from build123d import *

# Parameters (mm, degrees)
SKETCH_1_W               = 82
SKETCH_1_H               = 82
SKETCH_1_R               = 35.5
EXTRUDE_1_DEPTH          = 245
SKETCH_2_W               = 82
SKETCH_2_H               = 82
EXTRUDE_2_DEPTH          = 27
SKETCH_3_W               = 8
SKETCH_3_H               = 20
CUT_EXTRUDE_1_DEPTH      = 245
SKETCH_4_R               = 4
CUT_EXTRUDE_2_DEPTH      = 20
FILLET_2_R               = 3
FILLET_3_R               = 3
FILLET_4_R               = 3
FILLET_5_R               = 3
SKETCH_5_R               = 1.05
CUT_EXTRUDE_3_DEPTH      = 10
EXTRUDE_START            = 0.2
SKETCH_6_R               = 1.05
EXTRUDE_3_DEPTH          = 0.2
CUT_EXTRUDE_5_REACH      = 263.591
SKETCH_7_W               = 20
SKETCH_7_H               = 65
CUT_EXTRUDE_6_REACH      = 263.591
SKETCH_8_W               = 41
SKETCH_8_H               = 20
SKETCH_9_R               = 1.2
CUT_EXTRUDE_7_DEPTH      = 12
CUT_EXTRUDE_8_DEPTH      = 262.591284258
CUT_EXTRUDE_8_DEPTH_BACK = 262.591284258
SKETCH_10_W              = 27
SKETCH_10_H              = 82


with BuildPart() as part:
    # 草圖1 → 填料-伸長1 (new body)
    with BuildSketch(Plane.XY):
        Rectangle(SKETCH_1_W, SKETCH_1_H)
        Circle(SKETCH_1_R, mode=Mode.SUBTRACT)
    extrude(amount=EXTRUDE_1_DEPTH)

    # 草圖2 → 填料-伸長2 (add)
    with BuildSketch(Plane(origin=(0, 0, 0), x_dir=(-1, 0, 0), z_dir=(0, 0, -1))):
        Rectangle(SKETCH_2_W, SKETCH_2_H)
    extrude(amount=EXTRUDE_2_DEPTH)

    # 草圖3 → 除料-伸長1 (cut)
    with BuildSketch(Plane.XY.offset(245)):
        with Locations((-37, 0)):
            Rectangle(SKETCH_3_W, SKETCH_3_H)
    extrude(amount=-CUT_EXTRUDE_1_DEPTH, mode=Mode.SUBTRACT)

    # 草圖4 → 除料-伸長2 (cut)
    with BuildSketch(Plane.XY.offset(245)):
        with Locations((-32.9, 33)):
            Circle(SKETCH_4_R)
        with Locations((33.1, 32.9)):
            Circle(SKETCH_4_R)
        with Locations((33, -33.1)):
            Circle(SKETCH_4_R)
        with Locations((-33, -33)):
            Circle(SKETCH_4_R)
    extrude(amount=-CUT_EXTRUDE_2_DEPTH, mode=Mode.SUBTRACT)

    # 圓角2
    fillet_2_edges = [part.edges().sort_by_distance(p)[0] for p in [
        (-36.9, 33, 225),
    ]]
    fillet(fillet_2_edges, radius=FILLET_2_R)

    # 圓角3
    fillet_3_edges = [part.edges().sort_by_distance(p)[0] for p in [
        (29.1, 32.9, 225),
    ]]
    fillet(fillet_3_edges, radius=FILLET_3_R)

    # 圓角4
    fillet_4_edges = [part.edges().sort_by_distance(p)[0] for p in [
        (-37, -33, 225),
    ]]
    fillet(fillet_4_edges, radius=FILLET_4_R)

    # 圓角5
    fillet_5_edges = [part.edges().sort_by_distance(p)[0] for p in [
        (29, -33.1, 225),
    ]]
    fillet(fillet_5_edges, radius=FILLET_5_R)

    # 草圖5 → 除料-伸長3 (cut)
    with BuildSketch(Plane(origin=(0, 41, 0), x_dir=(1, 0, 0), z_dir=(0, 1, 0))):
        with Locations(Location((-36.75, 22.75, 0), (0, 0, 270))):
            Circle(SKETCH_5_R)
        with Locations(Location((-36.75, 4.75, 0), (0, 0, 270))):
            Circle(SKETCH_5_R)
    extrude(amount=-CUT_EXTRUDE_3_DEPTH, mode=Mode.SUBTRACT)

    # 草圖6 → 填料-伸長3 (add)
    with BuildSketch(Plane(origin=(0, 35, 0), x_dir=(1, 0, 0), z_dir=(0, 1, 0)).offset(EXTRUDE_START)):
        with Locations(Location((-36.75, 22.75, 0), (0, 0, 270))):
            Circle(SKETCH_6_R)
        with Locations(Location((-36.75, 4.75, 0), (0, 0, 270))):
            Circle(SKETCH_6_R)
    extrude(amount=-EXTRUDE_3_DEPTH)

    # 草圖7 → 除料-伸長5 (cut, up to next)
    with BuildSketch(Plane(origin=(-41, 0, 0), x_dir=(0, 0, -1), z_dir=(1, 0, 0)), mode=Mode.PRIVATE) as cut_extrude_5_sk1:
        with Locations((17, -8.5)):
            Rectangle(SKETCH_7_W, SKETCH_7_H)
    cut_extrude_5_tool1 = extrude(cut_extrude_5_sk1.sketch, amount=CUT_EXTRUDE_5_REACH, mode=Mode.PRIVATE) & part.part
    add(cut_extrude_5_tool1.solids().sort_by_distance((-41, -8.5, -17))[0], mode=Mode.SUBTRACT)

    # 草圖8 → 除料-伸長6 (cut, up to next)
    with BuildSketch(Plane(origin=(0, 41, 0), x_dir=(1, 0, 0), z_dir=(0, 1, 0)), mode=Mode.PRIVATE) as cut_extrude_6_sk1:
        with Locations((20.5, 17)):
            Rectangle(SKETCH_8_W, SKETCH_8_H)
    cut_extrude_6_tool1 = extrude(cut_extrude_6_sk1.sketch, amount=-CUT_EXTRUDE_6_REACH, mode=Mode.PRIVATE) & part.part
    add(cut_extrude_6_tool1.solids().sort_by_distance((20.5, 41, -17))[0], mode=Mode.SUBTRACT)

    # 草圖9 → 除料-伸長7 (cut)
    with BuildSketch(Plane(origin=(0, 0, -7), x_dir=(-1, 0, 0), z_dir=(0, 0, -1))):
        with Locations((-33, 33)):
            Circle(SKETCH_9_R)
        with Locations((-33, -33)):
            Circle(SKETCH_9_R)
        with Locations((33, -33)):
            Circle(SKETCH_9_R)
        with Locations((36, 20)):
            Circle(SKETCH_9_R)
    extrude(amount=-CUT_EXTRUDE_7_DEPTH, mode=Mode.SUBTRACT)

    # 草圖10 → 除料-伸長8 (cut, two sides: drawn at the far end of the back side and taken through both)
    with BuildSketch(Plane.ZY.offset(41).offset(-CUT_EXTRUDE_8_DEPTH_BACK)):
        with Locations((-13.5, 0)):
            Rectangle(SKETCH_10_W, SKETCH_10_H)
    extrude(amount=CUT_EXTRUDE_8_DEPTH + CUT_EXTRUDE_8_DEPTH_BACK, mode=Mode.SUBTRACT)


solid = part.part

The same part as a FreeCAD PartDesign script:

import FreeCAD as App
import Part
import Sketcher
from FreeCAD import Vector


def edges_at(feature, points):
    """Names of the edges that pass closest to the given points."""
    edges = feature.Shape.Edges
    near = lambda p: min(range(len(edges)), key=lambda i: edges[i].distToShape(Part.Vertex(*p))[0])
    return sorted({f"Edge{near(p) + 1}" for p in points})

doc = App.newDocument("Part")
params = doc.addObject("Spreadsheet::Sheet", "Params")
for row, (alias, value) in enumerate([
    ("sketch1_diameter", "71 mm"),
    ("sketch1_width", "82 mm"),
    ("pad1_length", "245 mm"),
    ("sketch2_width", "82 mm"),
    ("pad2_length", "27 mm"),
    ("sketch3_width", "8 mm"),
    ("sketch3_height", "20 mm"),
    ("pocket1_length", "245 mm"),
    ("sketch4_diameter", "8 mm"),
    ("pocket2_length", "20 mm"),
    ("fillet_radius", "3 mm"),
    ("fillet2_radius", "3 mm"),
    ("fillet3_radius", "3 mm"),
    ("fillet4_radius", "3 mm"),
    ("sketch5_diameter", "2.1 mm"),
    ("pocket3_length", "10 mm"),
    ("sketch6_diameter", "2.1 mm"),
    ("pad3_length", "0.2 mm"),
    ("sketch7_width", "65 mm"),
    ("sketch7_height", "20 mm"),
    ("sketch8_width", "41 mm"),
    ("sketch8_height", "20 mm"),
    ("sketch9_diameter", "2.4 mm"),
    ("pocket6_length", "12 mm"),
    ("sketch10_width", "82 mm"),
    ("sketch10_height", "27 mm"),
], start=1):
    params.set(f"A{row}", alias)
    params.set(f"B{row}", "=" + value)
    params.setAlias(f"B{row}", alias)

body = doc.addObject("PartDesign::Body", "Body")

# Sketch on XY plane
sketch1 = doc.addObject("Sketcher::SketchObject", "Sketch")
body.addObject(sketch1)
sketch1.AttachmentSupport = (doc.XY_Plane, [""])
sketch1.MapMode = "FlatFace"
sketch1.addGeometry([
    Part.LineSegment(Vector(-41, 41, 0), Vector(-41, -41, 0)),  # 0
    Part.LineSegment(Vector(-41, -41, 0), Vector(41, -41, 0)),  # 1
    Part.LineSegment(Vector(41, -41, 0), Vector(41, 41, 0)),  # 2
    Part.LineSegment(Vector(41, 41, 0), Vector(-41, 41, 0)),  # 3
    Part.Circle(Vector(0, 0, 0), Vector(0, 0, 1), 36),  # 4
], False)
sketch1.addConstraint([
    Sketcher.Constraint("Coincident", 0, 2, 1, 1),
    Sketcher.Constraint("Coincident", 1, 2, 2, 1),
    Sketcher.Constraint("Coincident", 2, 2, 3, 1),
    Sketcher.Constraint("Coincident", 3, 2, 0, 1),
    Sketcher.Constraint("Vertical", 0),
    Sketcher.Constraint("Horizontal", 1),
    Sketcher.Constraint("Vertical", 2),
    Sketcher.Constraint("Horizontal", 3),
    Sketcher.Constraint("Coincident", 4, 3, -1, 1),
    Sketcher.Constraint("Symmetric", 0, 2, 2, 2, -1, 1),
    Sketcher.Constraint("Equal", 3, 0),
    Sketcher.Constraint("Diameter", 4, 71.0),
    Sketcher.Constraint("DistanceX", 1, 1, 1, 2, 82.0),
])
sketch1.setExpression("Constraints[11]", "Params.sketch1_diameter")
sketch1.setExpression("Constraints[12]", "Params.sketch1_width")
pad1 = doc.addObject("PartDesign::Pad", "Pad")
body.addObject(pad1)
pad1.Profile = sketch1
pad1.setExpression("Length", "Params.pad1_length")

# Sketch on XY plane
sketch2 = doc.addObject("Sketcher::SketchObject", "Sketch001")
body.addObject(sketch2)
sketch2.AttachmentSupport = (doc.XY_Plane, [""])
sketch2.MapMode = "FlatFace"
sketch2.addGeometry([
    Part.LineSegment(Vector(41, 41, 0), Vector(41, -41, 0)),
    Part.LineSegment(Vector(41, -41, 0), Vector(-41, -41, 0)),
    Part.LineSegment(Vector(-41, -41, 0), Vector(-41, 41, 0)),
    Part.LineSegment(Vector(-41, 41, 0), Vector(41, 41, 0)),
], False)
sketch2.addConstraint([
    Sketcher.Constraint("Coincident", 0, 2, 1, 1),
    Sketcher.Constraint("Coincident", 1, 2, 2, 1),
    Sketcher.Constraint("Coincident", 2, 2, 3, 1),
    Sketcher.Constraint("Coincident", 3, 2, 0, 1),
    Sketcher.Constraint("Vertical", 0),
    Sketcher.Constraint("Horizontal", 1),
    Sketcher.Constraint("Vertical", 2),
    Sketcher.Constraint("Horizontal", 3),
    Sketcher.Constraint("Symmetric", 0, 2, 2, 2, -1, 1),
    Sketcher.Constraint("Equal", 3, 0),
    Sketcher.Constraint("DistanceX", 1, 2, 1, 1, 82.0),
])
sketch2.setExpression("Constraints[10]", "Params.sketch2_width")
pad2 = doc.addObject("PartDesign::Pad", "Pad001")
body.addObject(pad2)
pad2.Profile = sketch2
pad2.setExpression("Length", "Params.pad2_length")
pad2.Reversed = True

# Sketch on XY plane
sketch3 = doc.addObject("Sketcher::SketchObject", "Sketch002")
body.addObject(sketch3)
sketch3.AttachmentSupport = (doc.XY_Plane, [""])
sketch3.MapMode = "FlatFace"
sketch3.AttachmentOffset = App.Placement(Vector(0, 0, 245), App.Rotation())
sketch3.addGeometry([
    Part.LineSegment(Vector(-41, 10, 0), Vector(-41, -10, 0)),
    Part.LineSegment(Vector(-41, -10, 0), Vector(-33, -10, 0)),
    Part.LineSegment(Vector(-33, -10, 0), Vector(-33, 10, 0)),
    Part.LineSegment(Vector(-33, 10, 0), Vector(-41, 10, 0)),
], False)
sketch3.addConstraint([
    Sketcher.Constraint("Coincident", 0, 2, 1, 1),
    Sketcher.Constraint("Coincident", 1, 2, 2, 1),
    Sketcher.Constraint("Coincident", 2, 2, 3, 1),
    Sketcher.Constraint("Coincident", 3, 2, 0, 1),
    Sketcher.Constraint("Vertical", 0),
    Sketcher.Constraint("Horizontal", 1),
    Sketcher.Constraint("Vertical", 2),
    Sketcher.Constraint("Horizontal", 3),
    Sketcher.Constraint("DistanceX", 1, 1, 1, 2, 8.0),
    Sketcher.Constraint("DistanceY", 0, 2, 0, 1, 20.0),
    Sketcher.Constraint("DistanceX", 0, 2, -1, 1, 41.0),
    Sketcher.Constraint("DistanceY", 0, 2, -1, 1, 10.0),
])
sketch3.setExpression("Constraints[8]", "Params.sketch3_width")
sketch3.setExpression("Constraints[9]", "Params.sketch3_height")
pocket1 = doc.addObject("PartDesign::Pocket", "Pocket")
body.addObject(pocket1)
pocket1.Profile = sketch3
pocket1.setExpression("Length", "Params.pocket1_length")

# Sketch on XY plane
sketch4 = doc.addObject("Sketcher::SketchObject", "Sketch003")
body.addObject(sketch4)
sketch4.AttachmentSupport = (doc.XY_Plane, [""])
sketch4.MapMode = "FlatFace"
sketch4.AttachmentOffset = App.Placement(Vector(0, 0, 245), App.Rotation())
sketch4.addGeometry([
    Part.Circle(Vector(-32.9, 33, 0), Vector(0, 0, 1), 4),
    Part.Circle(Vector(33.1, 32.9, 0), Vector(0, 0, 1), 4),
    Part.Circle(Vector(33, -33.1, 0), Vector(0, 0, 1), 4),
    Part.Circle(Vector(-33, -33, 0), Vector(0, 0, 1), 4),
], False)
sketch4.addConstraint([
    Sketcher.Constraint("Equal", 0, 1),
    Sketcher.Constraint("Equal", 1, 2),
    Sketcher.Constraint("Equal", 2, 3),
    Sketcher.Constraint("Diameter", 0, 8.0),
    Sketcher.Constraint("DistanceY", -1, 1, 0, 3, 33.0),
    Sketcher.Constraint("DistanceX", -1, 1, 2, 3, 33.0),
    Sketcher.Constraint("DistanceX", 3, 3, -1, 1, 33.0),
    Sketcher.Constraint("DistanceY", 3, 3, -1, 1, 33.0),
    Sketcher.Constraint("DistanceX", 0, 3, 1, 3, 66.0),
    Sketcher.Constraint("DistanceY", 2, 3, 1, 3, 66.0),
    Sketcher.Constraint("DistanceX", 0, 3, -1, 1, 32.9),
    Sketcher.Constraint("DistanceY", -1, 1, 1, 3, 32.9),
])
sketch4.setExpression("Constraints[3]", "Params.sketch4_diameter")
pocket2 = doc.addObject("PartDesign::Pocket", "Pocket001")
body.addObject(pocket2)
pocket2.Profile = sketch4
pocket2.setExpression("Length", "Params.pocket2_length")
doc.recompute()

fillet = doc.addObject("PartDesign::Fillet", "Fillet")
body.addObject(fillet)
fillet.Base = (pocket2, edges_at(pocket2, [(-36.9, 33, 225)]))
fillet.setExpression("Radius", "Params.fillet_radius")
doc.recompute()

fillet2 = doc.addObject("PartDesign::Fillet", "Fillet001")
body.addObject(fillet2)
fillet2.Base = (fillet, edges_at(fillet, [(29.1, 32.9, 225)]))
fillet2.setExpression("Radius", "Params.fillet2_radius")
doc.recompute()

fillet3 = doc.addObject("PartDesign::Fillet", "Fillet002")
body.addObject(fillet3)
fillet3.Base = (fillet2, edges_at(fillet2, [(-37, -33, 225)]))
fillet3.setExpression("Radius", "Params.fillet3_radius")
doc.recompute()

fillet4 = doc.addObject("PartDesign::Fillet", "Fillet003")
body.addObject(fillet4)
fillet4.Base = (fillet3, edges_at(fillet3, [(29, -33.1, 225)]))
fillet4.setExpression("Radius", "Params.fillet4_radius")

# Sketch on XZ plane
sketch5 = doc.addObject("Sketcher::SketchObject", "Sketch004")
body.addObject(sketch5)
sketch5.AttachmentSupport = (doc.XZ_Plane, [""])
sketch5.MapMode = "FlatFace"
sketch5.AttachmentOffset = App.Placement(Vector(0, 0, -41), App.Rotation())
sketch5.addGeometry([
    Part.Circle(Vector(-36.8, -22.8, 0), Vector(0, 0, 1), 1.1),
    Part.Circle(Vector(-36.8, -4.8, 0), Vector(0, 0, 1), 1.1),
], False)
sketch5.addConstraint([
    Sketcher.Constraint("Equal", 0, 1),
    Sketcher.Constraint("Vertical", 0, 3, 1, 3),
    Sketcher.Constraint("Diameter", 0, 2.1),
    Sketcher.Constraint("DistanceY", 0, 3, 1, 3, 18.0),
    Sketcher.Constraint("DistanceX", 0, 3, -1, 1, 36.75),
    Sketcher.Constraint("DistanceY", 0, 3, -1, 1, 22.75),
])
sketch5.setExpression("Constraints[2]", "Params.sketch5_diameter")
pocket3 = doc.addObject("PartDesign::Pocket", "Pocket002")
body.addObject(pocket3)
pocket3.Profile = sketch5
pocket3.setExpression("Length", "Params.pocket3_length")
pocket3.Reversed = True

# Sketch on XZ plane
sketch6 = doc.addObject("Sketcher::SketchObject", "Sketch005")
body.addObject(sketch6)
sketch6.AttachmentSupport = (doc.XZ_Plane, [""])
sketch6.MapMode = "FlatFace"
sketch6.AttachmentOffset = App.Placement(Vector(0, 0, -35.2), App.Rotation())
sketch6.addGeometry([
    Part.Circle(Vector(-36.8, -22.8, 0), Vector(0, 0, 1), 1.1),
    Part.Circle(Vector(-36.8, -4.8, 0), Vector(0, 0, 1), 1.1),
], False)
sketch6.addConstraint([
    Sketcher.Constraint("Equal", 0, 1),
    Sketcher.Constraint("Vertical", 0, 3, 1, 3),
    Sketcher.Constraint("Diameter", 0, 2.1),
    Sketcher.Constraint("DistanceY", 0, 3, 1, 3, 18.0),
    Sketcher.Constraint("DistanceX", 0, 3, -1, 1, 36.75),
    Sketcher.Constraint("DistanceY", 0, 3, -1, 1, 22.75),
])
sketch6.setExpression("Constraints[2]", "Params.sketch6_diameter")
pad3 = doc.addObject("PartDesign::Pad", "Pad002")
body.addObject(pad3)
pad3.Profile = sketch6
pad3.setExpression("Length", "Params.pad3_length")

# Sketch on YZ plane
sketch7 = doc.addObject("Sketcher::SketchObject", "Sketch006")
body.addObject(sketch7)
sketch7.AttachmentSupport = (doc.YZ_Plane, [""])
sketch7.MapMode = "FlatFace"
sketch7.AttachmentOffset = App.Placement(Vector(0, 0, -41), App.Rotation())
sketch7.addGeometry([
    Part.LineSegment(Vector(24, -7, 0), Vector(-41, -7, 0)),
    Part.LineSegment(Vector(-41, -7, 0), Vector(-41, -27, 0)),
    Part.LineSegment(Vector(-41, -27, 0), Vector(24, -27, 0)),
    Part.LineSegment(Vector(24, -27, 0), Vector(24, -7, 0)),
], False)
sketch7.addConstraint([
    Sketcher.Constraint("Coincident", 0, 2, 1, 1),
    Sketcher.Constraint("Coincident", 1, 2, 2, 1),
    Sketcher.Constraint("Coincident", 2, 2, 3, 1),
    Sketcher.Constraint("Coincident", 3, 2, 0, 1),
    Sketcher.Constraint("Horizontal", 0),
    Sketcher.Constraint("Vertical", 1),
    Sketcher.Constraint("Horizontal", 2),
    Sketcher.Constraint("Vertical", 3),
    Sketcher.Constraint("DistanceX", 0, 2, 0, 1, 65.0),
    Sketcher.Constraint("DistanceY", 1, 2, 1, 1, 20.0),
    Sketcher.Constraint("DistanceX", 0, 2, -1, 1, 41.0),
    Sketcher.Constraint("DistanceY", 0, 2, -1, 1, 7.0),
])
sketch7.setExpression("Constraints[8]", "Params.sketch7_width")
sketch7.setExpression("Constraints[9]", "Params.sketch7_height")
pocket4 = doc.addObject("PartDesign::Pocket", "Pocket003")
body.addObject(pocket4)
pocket4.Profile = sketch7
pocket4.Type = "UpToFirst"
pocket4.Reversed = True

# Sketch on XZ plane
sketch8 = doc.addObject("Sketcher::SketchObject", "Sketch007")
body.addObject(sketch8)
sketch8.AttachmentSupport = (doc.XZ_Plane, [""])
sketch8.MapMode = "FlatFace"
sketch8.AttachmentOffset = App.Placement(Vector(0, 0, -41), App.Rotation())
sketch8.addGeometry([
    Part.LineSegment(Vector(0, -27, 0), Vector(0, -7, 0)),
    Part.LineSegment(Vector(0, -7, 0), Vector(41, -7, 0)),
    Part.LineSegment(Vector(41, -7, 0), Vector(41, -27, 0)),
    Part.LineSegment(Vector(41, -27, 0), Vector(0, -27, 0)),
], False)
sketch8.addConstraint([
    Sketcher.Constraint("Coincident", 0, 2, 1, 1),
    Sketcher.Constraint("Coincident", 1, 2, 2, 1),
    Sketcher.Constraint("Coincident", 2, 2, 3, 1),
    Sketcher.Constraint("Coincident", 3, 2, 0, 1),
    Sketcher.Constraint("Vertical", 0),
    Sketcher.Constraint("Horizontal", 1),
    Sketcher.Constraint("Vertical", 2),
    Sketcher.Constraint("Horizontal", 3),
    Sketcher.Constraint("PointOnObject", 0, 2, -2),
    Sketcher.Constraint("DistanceX", 1, 1, 1, 2, 41.0),
    Sketcher.Constraint("DistanceY", 0, 1, 0, 2, 20.0),
    Sketcher.Constraint("DistanceY", 0, 2, -1, 1, 7.0),
])
sketch8.setExpression("Constraints[9]", "Params.sketch8_width")
sketch8.setExpression("Constraints[10]", "Params.sketch8_height")
pocket5 = doc.addObject("PartDesign::Pocket", "Pocket004")
body.addObject(pocket5)
pocket5.Profile = sketch8
pocket5.Type = "UpToFirst"
pocket5.Reversed = True

# Sketch on XY plane
sketch9 = doc.addObject("Sketcher::SketchObject", "Sketch008")
body.addObject(sketch9)
sketch9.AttachmentSupport = (doc.XY_Plane, [""])
sketch9.MapMode = "FlatFace"
sketch9.AttachmentOffset = App.Placement(Vector(0, 0, -7), App.Rotation())
sketch9.addGeometry([
    Part.Circle(Vector(33, 33, 0), Vector(0, 0, 1), 1.2),
    Part.Circle(Vector(33, -33, 0), Vector(0, 0, 1), 1.2),
    Part.Circle(Vector(-33, -33, 0), Vector(0, 0, 1), 1.2),
    Part.Circle(Vector(-36, 20, 0), Vector(0, 0, 1), 1.2),
], False)
sketch9.addConstraint([
    Sketcher.Constraint("Equal", 0, 1),
    Sketcher.Constraint("Equal", 1, 2),
    Sketcher.Constraint("Equal", 2, 3),
    Sketcher.Constraint("Symmetric", 0, 3, 2, 3, -1, 1),
    Sketcher.Constraint("Symmetric", 1, 3, 2, 3, -2),
    Sketcher.Constraint("Diameter", 0, 2.4),
    Sketcher.Constraint("DistanceX", -1, 1, 0, 3, 33.0),
    Sketcher.Constraint("DistanceY", -1, 1, 0, 3, 33.0),
    Sketcher.Constraint("DistanceX", 3, 3, -1, 1, 36.0),
    Sketcher.Constraint("DistanceY", -1, 1, 3, 3, 20.0),
])
sketch9.setExpression("Constraints[5]", "Params.sketch9_diameter")
pocket6 = doc.addObject("PartDesign::Pocket", "Pocket005")
body.addObject(pocket6)
pocket6.Profile = sketch9
pocket6.setExpression("Length", "Params.pocket6_length")
pocket6.Reversed = True

# Sketch on YZ plane
sketch10 = doc.addObject("Sketcher::SketchObject", "Sketch009")
body.addObject(sketch10)
sketch10.AttachmentSupport = (doc.YZ_Plane, [""])
sketch10.MapMode = "FlatFace"
sketch10.AttachmentOffset = App.Placement(Vector(0, 0, -41), App.Rotation())
sketch10.addGeometry([
    Part.LineSegment(Vector(41, -27, 0), Vector(-41, -27, 0)),
    Part.LineSegment(Vector(-41, -27, 0), Vector(-41, 0, 0)),
    Part.LineSegment(Vector(-41, 0, 0), Vector(41, 0, 0)),
    Part.LineSegment(Vector(41, 0, 0), Vector(41, -27, 0)),
], False)
sketch10.addConstraint([
    Sketcher.Constraint("Coincident", 0, 2, 1, 1),
    Sketcher.Constraint("Coincident", 1, 2, 2, 1),
    Sketcher.Constraint("Coincident", 2, 2, 3, 1),
    Sketcher.Constraint("Coincident", 3, 2, 0, 1),
    Sketcher.Constraint("Horizontal", 0),
    Sketcher.Constraint("Vertical", 1),
    Sketcher.Constraint("Horizontal", 2),
    Sketcher.Constraint("Vertical", 3),
    Sketcher.Constraint("Symmetric", 1, 2, 2, 2, -1, 1),
    Sketcher.Constraint("DistanceX", 0, 2, 0, 1, 82.0),
    Sketcher.Constraint("DistanceY", 1, 1, 1, 2, 27.0),
])
sketch10.setExpression("Constraints[9]", "Params.sketch10_width")
sketch10.setExpression("Constraints[10]", "Params.sketch10_height")
pocket7 = doc.addObject("PartDesign::Pocket", "Pocket006")
body.addObject(pocket7)
pocket7.Profile = sketch10
pocket7.Type = "ThroughAll"
pocket7.Midplane = True

doc.recompute()
